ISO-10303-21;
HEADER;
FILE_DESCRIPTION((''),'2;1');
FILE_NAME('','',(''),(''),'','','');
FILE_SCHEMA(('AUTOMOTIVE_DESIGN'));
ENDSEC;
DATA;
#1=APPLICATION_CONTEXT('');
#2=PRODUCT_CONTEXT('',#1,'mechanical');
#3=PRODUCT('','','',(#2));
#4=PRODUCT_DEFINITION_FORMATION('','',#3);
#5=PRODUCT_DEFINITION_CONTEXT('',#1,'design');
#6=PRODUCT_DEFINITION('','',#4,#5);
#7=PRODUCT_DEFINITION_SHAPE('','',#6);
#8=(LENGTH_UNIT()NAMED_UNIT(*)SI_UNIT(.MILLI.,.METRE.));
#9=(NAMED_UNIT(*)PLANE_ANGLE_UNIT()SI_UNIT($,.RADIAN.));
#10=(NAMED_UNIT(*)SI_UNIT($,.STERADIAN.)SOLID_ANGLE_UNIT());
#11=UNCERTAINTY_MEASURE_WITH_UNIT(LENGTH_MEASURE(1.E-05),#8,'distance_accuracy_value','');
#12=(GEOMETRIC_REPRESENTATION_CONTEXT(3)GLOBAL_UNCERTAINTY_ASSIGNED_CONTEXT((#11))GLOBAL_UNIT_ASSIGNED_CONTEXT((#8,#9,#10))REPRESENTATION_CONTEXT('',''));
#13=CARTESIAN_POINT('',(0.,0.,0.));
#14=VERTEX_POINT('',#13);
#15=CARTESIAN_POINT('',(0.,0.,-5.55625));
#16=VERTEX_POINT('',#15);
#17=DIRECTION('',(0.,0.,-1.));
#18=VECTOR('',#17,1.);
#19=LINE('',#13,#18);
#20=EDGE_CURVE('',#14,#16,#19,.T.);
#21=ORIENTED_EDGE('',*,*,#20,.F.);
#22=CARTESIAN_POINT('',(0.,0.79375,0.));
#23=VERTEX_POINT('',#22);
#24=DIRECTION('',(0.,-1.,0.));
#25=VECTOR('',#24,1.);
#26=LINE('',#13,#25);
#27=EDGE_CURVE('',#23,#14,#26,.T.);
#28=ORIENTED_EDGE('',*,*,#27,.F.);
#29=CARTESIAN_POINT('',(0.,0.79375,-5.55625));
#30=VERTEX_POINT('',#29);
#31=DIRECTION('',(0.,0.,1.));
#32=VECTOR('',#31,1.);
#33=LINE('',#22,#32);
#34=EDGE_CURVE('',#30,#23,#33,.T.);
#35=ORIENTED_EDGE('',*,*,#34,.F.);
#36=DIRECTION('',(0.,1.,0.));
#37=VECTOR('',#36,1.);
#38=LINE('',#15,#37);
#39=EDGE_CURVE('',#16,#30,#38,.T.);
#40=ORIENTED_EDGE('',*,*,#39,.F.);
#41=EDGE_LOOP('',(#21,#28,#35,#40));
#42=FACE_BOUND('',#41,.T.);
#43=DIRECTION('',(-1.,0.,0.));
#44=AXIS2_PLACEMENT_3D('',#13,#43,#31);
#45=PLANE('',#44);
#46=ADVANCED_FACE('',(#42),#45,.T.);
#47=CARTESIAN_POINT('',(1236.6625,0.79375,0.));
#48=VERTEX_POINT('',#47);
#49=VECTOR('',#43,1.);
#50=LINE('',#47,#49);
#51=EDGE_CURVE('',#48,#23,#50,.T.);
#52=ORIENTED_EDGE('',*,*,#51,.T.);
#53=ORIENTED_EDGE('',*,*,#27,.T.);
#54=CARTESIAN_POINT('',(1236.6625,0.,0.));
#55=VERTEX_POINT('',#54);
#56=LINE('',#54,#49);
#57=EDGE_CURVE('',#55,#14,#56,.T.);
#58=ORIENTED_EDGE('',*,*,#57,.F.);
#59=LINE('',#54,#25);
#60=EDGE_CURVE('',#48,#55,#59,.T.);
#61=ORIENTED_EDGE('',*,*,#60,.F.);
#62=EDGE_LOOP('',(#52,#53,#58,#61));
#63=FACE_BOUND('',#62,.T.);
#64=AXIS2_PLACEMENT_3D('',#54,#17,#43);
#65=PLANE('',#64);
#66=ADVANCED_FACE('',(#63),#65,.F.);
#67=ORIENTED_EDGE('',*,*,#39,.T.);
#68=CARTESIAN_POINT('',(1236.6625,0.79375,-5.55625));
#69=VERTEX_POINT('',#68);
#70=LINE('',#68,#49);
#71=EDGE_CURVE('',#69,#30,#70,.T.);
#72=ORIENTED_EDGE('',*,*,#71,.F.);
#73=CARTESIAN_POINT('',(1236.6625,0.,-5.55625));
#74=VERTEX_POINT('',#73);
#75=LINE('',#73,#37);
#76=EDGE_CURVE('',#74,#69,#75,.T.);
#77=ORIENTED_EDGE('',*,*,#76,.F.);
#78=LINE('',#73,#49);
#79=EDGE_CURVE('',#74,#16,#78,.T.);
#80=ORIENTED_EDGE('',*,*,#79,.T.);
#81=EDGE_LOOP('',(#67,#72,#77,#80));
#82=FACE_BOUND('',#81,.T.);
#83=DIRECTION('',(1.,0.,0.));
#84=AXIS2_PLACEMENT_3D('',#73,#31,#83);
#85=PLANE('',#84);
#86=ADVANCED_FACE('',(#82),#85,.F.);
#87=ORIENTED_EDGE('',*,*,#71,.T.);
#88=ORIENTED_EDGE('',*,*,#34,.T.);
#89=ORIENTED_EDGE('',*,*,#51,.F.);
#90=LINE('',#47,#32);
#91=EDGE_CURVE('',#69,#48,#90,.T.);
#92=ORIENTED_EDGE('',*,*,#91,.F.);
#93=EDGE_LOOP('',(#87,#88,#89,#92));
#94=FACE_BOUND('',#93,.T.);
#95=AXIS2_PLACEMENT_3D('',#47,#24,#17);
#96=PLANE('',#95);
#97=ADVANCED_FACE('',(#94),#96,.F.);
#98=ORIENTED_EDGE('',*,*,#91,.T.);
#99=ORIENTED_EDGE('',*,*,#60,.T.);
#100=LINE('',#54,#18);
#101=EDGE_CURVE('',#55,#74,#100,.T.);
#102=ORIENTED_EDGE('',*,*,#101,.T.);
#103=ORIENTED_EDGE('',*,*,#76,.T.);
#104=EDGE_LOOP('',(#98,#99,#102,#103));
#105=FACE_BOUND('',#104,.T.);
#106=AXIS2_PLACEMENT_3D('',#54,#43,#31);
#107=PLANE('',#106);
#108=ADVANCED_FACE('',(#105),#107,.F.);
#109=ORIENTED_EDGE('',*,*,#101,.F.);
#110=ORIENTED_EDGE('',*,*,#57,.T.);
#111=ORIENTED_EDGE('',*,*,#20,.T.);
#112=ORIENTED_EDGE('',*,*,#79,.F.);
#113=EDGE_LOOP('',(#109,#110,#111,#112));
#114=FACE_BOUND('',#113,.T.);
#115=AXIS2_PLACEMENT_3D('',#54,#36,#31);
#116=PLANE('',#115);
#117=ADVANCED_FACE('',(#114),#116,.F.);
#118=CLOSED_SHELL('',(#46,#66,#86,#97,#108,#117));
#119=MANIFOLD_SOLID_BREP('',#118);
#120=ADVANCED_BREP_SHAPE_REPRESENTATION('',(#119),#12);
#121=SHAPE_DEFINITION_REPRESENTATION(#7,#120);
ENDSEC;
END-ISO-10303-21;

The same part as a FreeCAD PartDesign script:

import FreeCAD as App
import Part
import Sketcher

V = App.Vector
Q = App.Units.Quantity


def add_polygon(sketch, points):
    """Adds a closed chain of lines whose ends are joined by coincident constraints."""
    first, n = sketch.GeometryCount, len(points)
    for a, b in zip(points, points[1:] + points[:1]):
        sketch.addGeometry(Part.LineSegment(App.Vector(*a, 0), App.Vector(*b, 0)), False)
    for i in range(n):
        sketch.addConstraint(Sketcher.Constraint("Coincident", first + i, 2, first + (i + 1) % n, 1))

doc = App.newDocument("Part")
body = doc.addObject("PartDesign::Body", "Body")

sketch1 = doc.addObject("Sketcher::SketchObject", "Sketch")
body.addObject(sketch1)
sketch1.AttachmentSupport = (doc.YZ_Plane, [""])
sketch1.MapMode = "FlatFace"
add_polygon(sketch1, [(0.8, 0), (0, 0), (0, -5.6), (0.8, -5.6)])
sketch1.addConstraint(Sketcher.Constraint("Horizontal", 0))
sketch1.addConstraint(Sketcher.Constraint("Vertical", 1))
sketch1.addConstraint(Sketcher.Constraint("Horizontal", 2))
sketch1.addConstraint(Sketcher.Constraint("Vertical", 3))
sketch1.addConstraint(Sketcher.Constraint("Coincident", 0, 2, -1, 1))
sketch1.addConstraint(Sketcher.Constraint("DistanceX", 0, 2, 0, 1, Q("0.03125 in")))
sketch1.addConstraint(Sketcher.Constraint("DistanceY", 1, 2, 1, 1, Q("0.21875 in")))
pad1 = doc.addObject("PartDesign::Pad", "Pad")
body.addObject(pad1)
pad1.Profile = sketch1
pad1.Length = Q("48.6875 in")

doc.recompute()
